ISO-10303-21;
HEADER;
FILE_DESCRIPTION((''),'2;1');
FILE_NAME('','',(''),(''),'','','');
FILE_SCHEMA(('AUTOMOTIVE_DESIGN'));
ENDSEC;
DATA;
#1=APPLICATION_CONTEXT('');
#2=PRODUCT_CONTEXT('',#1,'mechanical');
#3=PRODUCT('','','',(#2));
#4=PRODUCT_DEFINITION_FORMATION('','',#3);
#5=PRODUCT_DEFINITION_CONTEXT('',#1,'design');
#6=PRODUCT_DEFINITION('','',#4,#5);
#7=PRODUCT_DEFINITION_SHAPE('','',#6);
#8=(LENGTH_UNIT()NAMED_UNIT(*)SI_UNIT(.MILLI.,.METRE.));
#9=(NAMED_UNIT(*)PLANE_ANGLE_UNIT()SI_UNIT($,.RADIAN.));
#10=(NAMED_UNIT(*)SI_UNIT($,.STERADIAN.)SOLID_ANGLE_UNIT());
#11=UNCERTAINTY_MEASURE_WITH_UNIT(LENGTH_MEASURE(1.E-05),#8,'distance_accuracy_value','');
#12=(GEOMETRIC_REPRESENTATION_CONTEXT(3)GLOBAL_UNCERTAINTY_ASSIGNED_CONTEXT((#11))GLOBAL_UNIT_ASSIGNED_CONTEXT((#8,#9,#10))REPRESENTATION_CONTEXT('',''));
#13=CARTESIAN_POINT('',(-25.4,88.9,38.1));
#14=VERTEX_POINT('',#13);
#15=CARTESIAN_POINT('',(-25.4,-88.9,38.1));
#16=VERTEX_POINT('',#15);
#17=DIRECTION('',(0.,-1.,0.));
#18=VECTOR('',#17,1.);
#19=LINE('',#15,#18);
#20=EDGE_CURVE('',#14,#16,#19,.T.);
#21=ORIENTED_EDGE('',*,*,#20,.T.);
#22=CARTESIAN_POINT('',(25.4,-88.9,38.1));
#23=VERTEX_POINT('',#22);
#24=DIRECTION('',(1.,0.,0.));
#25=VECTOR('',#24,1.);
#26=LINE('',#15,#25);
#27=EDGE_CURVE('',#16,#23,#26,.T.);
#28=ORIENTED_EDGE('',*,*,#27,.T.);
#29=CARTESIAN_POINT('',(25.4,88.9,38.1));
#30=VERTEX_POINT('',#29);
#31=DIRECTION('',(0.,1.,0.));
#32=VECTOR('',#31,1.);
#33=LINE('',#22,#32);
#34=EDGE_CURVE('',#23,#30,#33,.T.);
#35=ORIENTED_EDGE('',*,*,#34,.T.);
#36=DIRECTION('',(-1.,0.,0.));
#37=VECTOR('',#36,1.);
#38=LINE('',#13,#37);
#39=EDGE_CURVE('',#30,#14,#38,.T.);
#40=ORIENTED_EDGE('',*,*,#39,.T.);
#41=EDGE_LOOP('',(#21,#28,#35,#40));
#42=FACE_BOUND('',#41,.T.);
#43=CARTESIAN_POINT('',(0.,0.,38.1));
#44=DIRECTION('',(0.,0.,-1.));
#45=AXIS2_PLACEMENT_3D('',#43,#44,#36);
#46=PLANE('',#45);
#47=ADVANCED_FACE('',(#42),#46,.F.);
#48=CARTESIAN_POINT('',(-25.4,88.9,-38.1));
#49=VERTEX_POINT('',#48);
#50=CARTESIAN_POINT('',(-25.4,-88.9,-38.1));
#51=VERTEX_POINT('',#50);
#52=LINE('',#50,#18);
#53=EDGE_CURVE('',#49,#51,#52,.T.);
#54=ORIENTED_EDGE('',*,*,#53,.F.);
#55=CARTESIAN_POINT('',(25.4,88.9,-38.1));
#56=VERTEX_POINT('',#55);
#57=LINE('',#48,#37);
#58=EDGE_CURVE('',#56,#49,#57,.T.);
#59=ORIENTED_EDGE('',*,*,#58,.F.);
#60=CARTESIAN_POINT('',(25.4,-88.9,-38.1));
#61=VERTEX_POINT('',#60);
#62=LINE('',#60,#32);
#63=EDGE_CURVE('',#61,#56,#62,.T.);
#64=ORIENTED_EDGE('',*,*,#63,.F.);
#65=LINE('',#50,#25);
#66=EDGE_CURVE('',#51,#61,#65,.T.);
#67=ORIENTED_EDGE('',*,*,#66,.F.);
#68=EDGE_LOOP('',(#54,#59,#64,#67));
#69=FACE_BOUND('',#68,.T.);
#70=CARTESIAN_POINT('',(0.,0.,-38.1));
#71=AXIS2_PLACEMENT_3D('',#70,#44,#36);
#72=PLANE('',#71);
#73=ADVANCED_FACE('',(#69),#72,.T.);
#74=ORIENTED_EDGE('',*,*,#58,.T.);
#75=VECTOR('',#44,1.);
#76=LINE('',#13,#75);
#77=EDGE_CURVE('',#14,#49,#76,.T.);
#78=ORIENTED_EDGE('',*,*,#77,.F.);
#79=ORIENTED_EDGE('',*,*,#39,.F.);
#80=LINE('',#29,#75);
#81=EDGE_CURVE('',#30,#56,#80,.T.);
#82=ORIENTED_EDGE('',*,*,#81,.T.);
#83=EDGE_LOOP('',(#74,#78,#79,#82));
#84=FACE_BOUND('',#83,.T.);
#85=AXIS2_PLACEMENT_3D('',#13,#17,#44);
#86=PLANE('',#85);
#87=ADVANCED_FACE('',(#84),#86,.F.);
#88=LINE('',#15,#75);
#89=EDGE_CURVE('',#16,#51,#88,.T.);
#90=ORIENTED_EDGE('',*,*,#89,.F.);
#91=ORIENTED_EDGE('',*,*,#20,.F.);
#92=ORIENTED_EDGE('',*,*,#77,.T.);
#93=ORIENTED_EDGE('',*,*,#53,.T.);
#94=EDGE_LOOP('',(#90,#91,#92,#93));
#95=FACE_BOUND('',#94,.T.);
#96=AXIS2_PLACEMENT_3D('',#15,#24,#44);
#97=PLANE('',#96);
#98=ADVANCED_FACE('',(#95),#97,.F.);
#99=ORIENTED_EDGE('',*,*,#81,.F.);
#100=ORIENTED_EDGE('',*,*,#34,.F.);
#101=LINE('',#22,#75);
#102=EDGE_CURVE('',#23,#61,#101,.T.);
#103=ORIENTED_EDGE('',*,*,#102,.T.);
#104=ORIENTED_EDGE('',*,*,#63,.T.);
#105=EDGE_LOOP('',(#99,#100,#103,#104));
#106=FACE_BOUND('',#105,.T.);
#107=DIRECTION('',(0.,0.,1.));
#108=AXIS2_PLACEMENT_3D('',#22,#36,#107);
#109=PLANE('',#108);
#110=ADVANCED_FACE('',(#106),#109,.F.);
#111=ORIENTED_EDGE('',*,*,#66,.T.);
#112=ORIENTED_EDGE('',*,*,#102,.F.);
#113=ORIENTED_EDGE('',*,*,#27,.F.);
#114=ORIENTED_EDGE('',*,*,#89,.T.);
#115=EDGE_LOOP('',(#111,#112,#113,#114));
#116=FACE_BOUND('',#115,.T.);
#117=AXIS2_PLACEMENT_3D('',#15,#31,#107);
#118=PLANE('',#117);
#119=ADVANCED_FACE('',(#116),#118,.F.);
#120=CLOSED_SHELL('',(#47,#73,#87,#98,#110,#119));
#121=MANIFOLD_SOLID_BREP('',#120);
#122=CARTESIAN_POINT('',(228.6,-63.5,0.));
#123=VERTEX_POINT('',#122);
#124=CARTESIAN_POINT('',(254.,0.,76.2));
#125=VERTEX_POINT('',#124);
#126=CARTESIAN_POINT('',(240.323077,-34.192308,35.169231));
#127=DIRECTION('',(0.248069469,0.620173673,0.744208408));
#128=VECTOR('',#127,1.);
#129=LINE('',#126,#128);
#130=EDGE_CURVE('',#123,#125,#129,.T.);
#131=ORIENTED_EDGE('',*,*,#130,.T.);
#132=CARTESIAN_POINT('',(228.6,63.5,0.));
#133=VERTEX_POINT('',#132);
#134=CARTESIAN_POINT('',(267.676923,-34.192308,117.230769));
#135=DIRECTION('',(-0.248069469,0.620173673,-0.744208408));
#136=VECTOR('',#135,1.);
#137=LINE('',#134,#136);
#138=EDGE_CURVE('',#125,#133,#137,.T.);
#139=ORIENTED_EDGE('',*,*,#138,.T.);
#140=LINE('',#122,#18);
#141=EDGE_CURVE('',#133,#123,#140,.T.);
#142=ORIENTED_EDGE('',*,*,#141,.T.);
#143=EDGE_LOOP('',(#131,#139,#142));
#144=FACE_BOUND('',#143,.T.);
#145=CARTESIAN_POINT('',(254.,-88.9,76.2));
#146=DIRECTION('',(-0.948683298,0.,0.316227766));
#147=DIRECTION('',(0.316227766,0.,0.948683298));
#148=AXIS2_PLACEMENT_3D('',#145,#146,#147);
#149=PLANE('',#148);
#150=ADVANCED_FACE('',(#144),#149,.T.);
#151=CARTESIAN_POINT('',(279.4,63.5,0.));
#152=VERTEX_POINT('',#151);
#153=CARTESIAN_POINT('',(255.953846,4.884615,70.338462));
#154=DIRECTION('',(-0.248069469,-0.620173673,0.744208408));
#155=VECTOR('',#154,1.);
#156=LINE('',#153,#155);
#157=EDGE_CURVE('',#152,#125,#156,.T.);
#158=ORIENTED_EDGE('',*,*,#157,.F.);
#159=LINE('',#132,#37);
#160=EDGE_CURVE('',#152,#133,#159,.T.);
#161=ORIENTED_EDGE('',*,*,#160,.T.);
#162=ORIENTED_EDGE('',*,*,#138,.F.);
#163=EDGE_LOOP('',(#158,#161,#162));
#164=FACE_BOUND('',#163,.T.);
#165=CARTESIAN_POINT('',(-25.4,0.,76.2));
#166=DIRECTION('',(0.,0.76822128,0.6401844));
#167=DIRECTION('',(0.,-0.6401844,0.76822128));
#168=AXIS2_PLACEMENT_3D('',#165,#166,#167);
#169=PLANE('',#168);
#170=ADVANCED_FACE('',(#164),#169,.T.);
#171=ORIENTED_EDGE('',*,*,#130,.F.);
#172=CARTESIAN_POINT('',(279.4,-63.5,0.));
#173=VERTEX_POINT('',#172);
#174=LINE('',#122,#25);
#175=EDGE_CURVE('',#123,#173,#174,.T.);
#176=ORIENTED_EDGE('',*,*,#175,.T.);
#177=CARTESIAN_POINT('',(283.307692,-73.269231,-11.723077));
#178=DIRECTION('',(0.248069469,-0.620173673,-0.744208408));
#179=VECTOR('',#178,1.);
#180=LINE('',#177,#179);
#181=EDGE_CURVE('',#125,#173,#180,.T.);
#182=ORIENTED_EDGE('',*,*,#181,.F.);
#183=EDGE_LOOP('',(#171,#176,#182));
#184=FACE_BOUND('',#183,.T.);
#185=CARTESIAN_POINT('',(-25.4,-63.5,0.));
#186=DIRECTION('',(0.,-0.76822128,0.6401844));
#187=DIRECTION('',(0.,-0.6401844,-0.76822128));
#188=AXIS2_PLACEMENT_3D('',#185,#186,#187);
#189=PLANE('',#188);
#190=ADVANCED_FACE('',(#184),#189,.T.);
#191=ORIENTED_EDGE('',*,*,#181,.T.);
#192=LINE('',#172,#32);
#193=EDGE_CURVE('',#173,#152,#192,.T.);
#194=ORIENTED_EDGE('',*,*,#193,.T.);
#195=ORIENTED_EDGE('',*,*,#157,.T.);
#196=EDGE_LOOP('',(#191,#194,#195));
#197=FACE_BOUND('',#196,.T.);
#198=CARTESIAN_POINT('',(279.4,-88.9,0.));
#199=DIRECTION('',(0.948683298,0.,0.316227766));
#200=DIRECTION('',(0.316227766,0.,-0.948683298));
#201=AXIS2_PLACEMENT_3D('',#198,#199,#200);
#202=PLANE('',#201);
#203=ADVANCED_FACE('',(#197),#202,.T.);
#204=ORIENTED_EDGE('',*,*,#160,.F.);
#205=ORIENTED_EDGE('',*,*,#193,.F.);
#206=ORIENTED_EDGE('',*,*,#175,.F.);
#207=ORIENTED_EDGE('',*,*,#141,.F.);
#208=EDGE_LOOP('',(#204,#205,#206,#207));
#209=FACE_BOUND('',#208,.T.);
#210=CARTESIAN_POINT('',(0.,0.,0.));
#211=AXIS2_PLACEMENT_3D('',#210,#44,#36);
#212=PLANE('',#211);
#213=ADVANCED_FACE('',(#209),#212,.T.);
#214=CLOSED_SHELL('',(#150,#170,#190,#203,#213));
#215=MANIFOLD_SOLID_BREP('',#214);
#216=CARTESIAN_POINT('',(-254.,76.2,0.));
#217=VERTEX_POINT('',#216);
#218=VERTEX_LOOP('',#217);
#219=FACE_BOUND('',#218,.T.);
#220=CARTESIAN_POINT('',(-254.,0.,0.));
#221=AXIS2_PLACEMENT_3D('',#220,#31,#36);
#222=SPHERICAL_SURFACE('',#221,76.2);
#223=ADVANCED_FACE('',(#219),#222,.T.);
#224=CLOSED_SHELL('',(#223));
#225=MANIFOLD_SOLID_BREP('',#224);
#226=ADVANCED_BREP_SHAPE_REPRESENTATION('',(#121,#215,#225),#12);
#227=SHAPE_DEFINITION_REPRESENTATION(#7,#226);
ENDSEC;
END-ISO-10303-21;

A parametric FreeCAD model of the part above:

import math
import FreeCAD as App
import Part
import Sketcher
from FreeCAD import Vector
Q = App.Units.Quantity


def add_polygon(sketch, points):
    """Adds a closed chain of lines whose ends are joined by coincident constraints."""
    first, n = sketch.GeometryCount, len(points)
    for a, b in zip(points, points[1:] + points[:1]):
        sketch.addGeometry(Part.LineSegment(App.Vector(*a, 0), App.Vector(*b, 0)), False)
    for i in range(n):
        sketch.addConstraint(Sketcher.Constraint("Coincident", first + i, 2, first + (i + 1) % n, 1))

doc = App.newDocument("Part")
body = doc.addObject("PartDesign::Body", "Body")

# Sketch on XY plane
sketch1 = doc.addObject("Sketcher::SketchObject", "Sketch")
body.addObject(sketch1)
sketch1.AttachmentSupport = (doc.XY_Plane, [""])
sketch1.MapMode = "FlatFace"
add_polygon(sketch1, [(-25.4, 88.9), (-25.4, -88.9), (25.4, -88.9), (25.4, 88.9)])  # lines 0-3
sketch1.addConstraint(Sketcher.Constraint("Vertical", 0))
sketch1.addConstraint(Sketcher.Constraint("Horizontal", 1))
sketch1.addConstraint(Sketcher.Constraint("Vertical", 2))
sketch1.addConstraint(Sketcher.Constraint("Horizontal", 3))
sketch1.addConstraint(Sketcher.Constraint("Symmetric", 0, 2, 2, 2, -1, 1))
sketch1.addConstraint(Sketcher.Constraint("DistanceX", 1, 1, 1, 2, Q("2 in")))
sketch1.addConstraint(Sketcher.Constraint("DistanceY", 0, 2, 0, 1, Q("7 in")))
pad1 = doc.addObject("PartDesign::Pad", "Pad")
body.addObject(pad1)
pad1.Profile = sketch1
pad1.Length = Q("3 in")
pad1.Midplane = True
body2 = doc.addObject("PartDesign::Body", "Body001")

# Sketch on XY plane
sketch2 = doc.addObject("Sketcher::SketchObject", "Sketch001")
body2.addObject(sketch2)
sketch2.AttachmentSupport = (doc.getObject("XY_Plane001"), [""])
sketch2.MapMode = "FlatFace"
add_polygon(sketch2, [(228.6, 63.5), (228.6, -63.5), (279.4, -63.5), (279.4, 63.5)])  # lines 0-3
sketch2.addConstraint(Sketcher.Constraint("Vertical", 0))
sketch2.addConstraint(Sketcher.Constraint("Horizontal", 1))
sketch2.addConstraint(Sketcher.Constraint("Vertical", 2))
sketch2.addConstraint(Sketcher.Constraint("Horizontal", 3))
sketch2.addConstraint(Sketcher.Constraint("DistanceX", 1, 1, 1, 2, Q("2 in")))
sketch2.addConstraint(Sketcher.Constraint("DistanceY", 0, 2, 0, 1, Q("5 in")))
sketch2.addConstraint(Sketcher.Constraint("DistanceX", -1, 1, 0, 2, Q("9 in")))
sketch2.addConstraint(Sketcher.Constraint("DistanceY", 0, 2, -1, 1, Q("2.5 in")))
pad2 = doc.addObject("PartDesign::Pad", "Pad001")
body2.addObject(pad2)
pad2.Profile = sketch2
pad2.Length = Q("3 in")

# Sketch on XZ plane
sketch3 = doc.addObject("Sketcher::SketchObject", "Sketch002")
body2.addObject(sketch3)
sketch3.AttachmentSupport = (doc.getObject("XZ_Plane001"), [""])
sketch3.MapMode = "FlatFace"
add_polygon(sketch3, [(-63.492, -76.192), (-63.492, 114.292), (317.492, 114.292), (317.492, -76.192)])  # lines 0-3
add_polygon(sketch3, [(228.6, 0), (279.4, 0), (254, 76.2)])  # lines 4-6
sketch3.addConstraint(Sketcher.Constraint("Vertical", 0))
sketch3.addConstraint(Sketcher.Constraint("Horizontal", 1))
sketch3.addConstraint(Sketcher.Constraint("Vertical", 2))
sketch3.addConstraint(Sketcher.Constraint("Horizontal", 3))
sketch3.addConstraint(Sketcher.Constraint("Horizontal", 4))
sketch3.addConstraint(Sketcher.Constraint("PointOnObject", 4, 2, -1))
sketch3.addConstraint(Sketcher.Constraint("Equal", 5, 6))
sketch3.addConstraint(Sketcher.Constraint("DistanceX", 4, 1, 4, 2, Q("2 in")))
sketch3.addConstraint(Sketcher.Constraint("DistanceX", -1, 1, 4, 2, Q("11 in")))
sketch3.addConstraint(Sketcher.Constraint("DistanceY", -1, 1, 5, 2, Q("3 in")))
sketch3.addConstraint(Sketcher.Constraint("DistanceX", 1, 1, 1, 2, Q("380.984 mm")))
sketch3.addConstraint(Sketcher.Constraint("DistanceY", 0, 1, 0, 2, Q("190.484 mm")))
sketch3.addConstraint(Sketcher.Constraint("DistanceX", 0, 2, -1, 1, Q("63.492 mm")))
sketch3.addConstraint(Sketcher.Constraint("DistanceY", -1, 1, 0, 2, Q("114.292 mm")))
pocket1 = doc.addObject("PartDesign::Pocket", "Pocket")
body2.addObject(pocket1)
pocket1.Profile = sketch3
pocket1.Type = "ThroughAll"
pocket1.Midplane = True

# Sketch on YZ plane
sketch4 = doc.addObject("Sketcher::SketchObject", "Sketch003")
body2.addObject(sketch4)
sketch4.AttachmentSupport = (doc.getObject("YZ_Plane001"), [""])
sketch4.MapMode = "FlatFace"
sketch4.AttachmentOffset = App.Placement(Vector(0, 0, 10 * 25.4), App.Rotation())
add_polygon(sketch4, [(126.992, 114.292), (-126.992, 114.292), (-126.992, -76.192), (126.992, -76.192)])  # lines 0-3
add_polygon(sketch4, [(-63.5, 0), (0, 76.2), (63.5, 0)])  # lines 4-6
sketch4.addConstraint(Sketcher.Constraint("Horizontal", 0))
sketch4.addConstraint(Sketcher.Constraint("Vertical", 1))
sketch4.addConstraint(Sketcher.Constraint("Horizontal", 2))
sketch4.addConstraint(Sketcher.Constraint("Vertical", 3))
sketch4.addConstraint(Sketcher.Constraint("Horizontal", 6))
sketch4.addConstraint(Sketcher.Constraint("Symmetric", 5, 2, 6, 2, -1, 1))
sketch4.addConstraint(Sketcher.Constraint("PointOnObject", 4, 2, -2))
sketch4.addConstraint(Sketcher.Constraint("DistanceX", 6, 2, 6, 1, Q("5 in")))
sketch4.addConstraint(Sketcher.Constraint("DistanceY", -1, 1, 4, 2, Q("3 in")))
sketch4.addConstraint(Sketcher.Constraint("DistanceX", 0, 2, 0, 1, Q("253.984 mm")))
sketch4.addConstraint(Sketcher.Constraint("DistanceY", 1, 2, 1, 1, Q("190.484 mm")))
sketch4.addConstraint(Sketcher.Constraint("DistanceX", 0, 2, -1, 1, Q("126.992 mm")))
sketch4.addConstraint(Sketcher.Constraint("DistanceY", -1, 1, 0, 2, Q("114.292 mm")))
pocket2 = doc.addObject("PartDesign::Pocket", "Pocket001")
body2.addObject(pocket2)
pocket2.Profile = sketch4
pocket2.Type = "ThroughAll"
pocket2.Midplane = True
body3 = doc.addObject("PartDesign::Body", "Body002")

# Sketch on XY plane
sketch5 = doc.addObject("Sketcher::SketchObject", "Sketch004")
body3.addObject(sketch5)
sketch5.AttachmentSupport = (doc.getObject("XY_Plane002"), [""])
sketch5.MapMode = "FlatFace"
sketch5.addGeometry(Part.LineSegment(Vector(-254, -76.2, 0), Vector(-254, 76.2, 0)), False)
sketch5.addGeometry(Part.ArcOfCircle(Part.Circle(Vector(-254, 0, 0), Vector(0, 0, 1), 76.2), math.radians(90), math.radians(270)), False)
sketch5.addGeometry(Part.LineSegment(Vector(-254, 76.2, 0), Vector(-254, -76.2, 0)), True)  # axis
sketch5.addConstraint(Sketcher.Constraint("Coincident", 0, 1, 1, 2))
sketch5.addConstraint(Sketcher.Constraint("Coincident", 1, 1, 0, 2))
sketch5.addConstraint(Sketcher.Constraint("Vertical", 0))
sketch5.addConstraint(Sketcher.Constraint("Vertical", 2))
sketch5.addConstraint(Sketcher.Constraint("Coincident", 2, 1, 1, 1))
sketch5.addConstraint(Sketcher.Constraint("PointOnObject", 1, 3, -1))
sketch5.addConstraint(Sketcher.Constraint("Vertical", 1, 3, 0, 1))
sketch5.addConstraint(Sketcher.Constraint("Equal", 0, 2))
sketch5.addConstraint(Sketcher.Constraint("Radius", 1, Q("3 in")))
sketch5.addConstraint(Sketcher.Constraint("DistanceX", 1, 3, -1, 1, Q("10 in")))
revolution = doc.addObject("PartDesign::Revolution", "Revolution")
body3.addObject(revolution)
revolution.Profile = sketch5
revolution.ReferenceAxis = (sketch5, ["Axis0"])
revolution.Angle = 360

doc.recompute()
